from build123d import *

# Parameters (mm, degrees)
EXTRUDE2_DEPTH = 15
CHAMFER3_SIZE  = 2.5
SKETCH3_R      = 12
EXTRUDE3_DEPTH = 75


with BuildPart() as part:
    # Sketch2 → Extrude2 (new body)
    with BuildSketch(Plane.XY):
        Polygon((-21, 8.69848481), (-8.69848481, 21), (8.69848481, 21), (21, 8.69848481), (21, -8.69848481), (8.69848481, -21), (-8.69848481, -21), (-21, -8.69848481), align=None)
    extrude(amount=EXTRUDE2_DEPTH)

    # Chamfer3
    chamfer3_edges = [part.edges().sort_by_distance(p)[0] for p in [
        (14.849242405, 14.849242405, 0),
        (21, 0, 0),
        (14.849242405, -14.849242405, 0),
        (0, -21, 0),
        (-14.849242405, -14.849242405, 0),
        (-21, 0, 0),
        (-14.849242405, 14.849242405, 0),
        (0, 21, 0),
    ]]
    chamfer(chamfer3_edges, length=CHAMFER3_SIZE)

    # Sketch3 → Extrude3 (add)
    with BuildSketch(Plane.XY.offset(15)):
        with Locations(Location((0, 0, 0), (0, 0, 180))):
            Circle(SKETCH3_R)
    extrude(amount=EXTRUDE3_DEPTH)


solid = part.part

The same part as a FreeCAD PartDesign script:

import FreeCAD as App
import Part
import Sketcher


def edges_at(feature, points):
    """Names of the edges that pass closest to the given points."""
    edges = feature.Shape.Edges
    near = lambda p: min(range(len(edges)), key=lambda i: edges[i].distToShape(Part.Vertex(*p))[0])
    return sorted({f"Edge{near(p) + 1}" for p in points})

doc = App.newDocument("Part")
body = doc.addObject("PartDesign::Body", "Body")

# Sketch on XY plane
sketch1 = doc.addObject("Sketcher::SketchObject", "Sketch")
body.addObject(sketch1)
sketch1.AttachmentSupport = (doc.XY_Plane, [""])
sketch1.MapMode = "FlatFace"
sketch1.addGeometry([
    Part.LineSegment(App.Vector(-9, 21, 0), App.Vector(-21, 9, 0)),  # 0
    Part.LineSegment(App.Vector(-21, 9, 0), App.Vector(-21, -9, 0)),  # 1
    Part.LineSegment(App.Vector(-21, -9, 0), App.Vector(-9, -21, 0)),  # 2
    Part.LineSegment(App.Vector(-9, -21, 0), App.Vector(9, -21, 0)),  # 3
    Part.LineSegment(App.Vector(9, -21, 0), App.Vector(21, -9, 0)),  # 4
    Part.LineSegment(App.Vector(21, -9, 0), App.Vector(21, 9, 0)),  # 5
    Part.LineSegment(App.Vector(21, 9, 0), App.Vector(9, 21, 0)),  # 6
    Part.LineSegment(App.Vector(9, 21, 0), App.Vector(-9, 21, 0)),  # 7
], False)
sketch1.addConstraint([
    Sketcher.Constraint("Coincident", 0, 2, 1, 1),
    Sketcher.Constraint("Coincident", 1, 2, 2, 1),
    Sketcher.Constraint("Coincident", 2, 2, 3, 1),
    Sketcher.Constraint("Coincident", 3, 2, 4, 1),
    Sketcher.Constraint("Coincident", 4, 2, 5, 1),
    Sketcher.Constraint("Coincident", 5, 2, 6, 1),
    Sketcher.Constraint("Coincident", 6, 2, 7, 1),
    Sketcher.Constraint("Coincident", 7, 2, 0, 1),
    Sketcher.Constraint("Vertical", 1),
    Sketcher.Constraint("Horizontal", 3),
    Sketcher.Constraint("Vertical", 5),
    Sketcher.Constraint("Horizontal", 7),
    Sketcher.Constraint("Symmetric", 0, 2, 4, 2, -1, 1),
    Sketcher.Constraint("Symmetric", 2, 2, 6, 2, -1, 1),
    Sketcher.Constraint("Perpendicular", 0, 2),
    Sketcher.Constraint("Perpendicular", 2, 4),
    Sketcher.Constraint("Perpendicular", 4, 6),
    Sketcher.Constraint("Horizontal", 1, 2, 4, 2),
    Sketcher.Constraint("Vertical", 3, 2, 6, 2),
    Sketcher.Constraint("Equal", 7, 1),
    Sketcher.Constraint("DistanceX", 0, 2, -1, 1, 21.0),
    Sketcher.Constraint("DistanceX", 3, 1, 3, 2, 17.39697),
])
pad1 = doc.addObject("PartDesign::Pad", "Pad")
body.addObject(pad1)
pad1.Profile = sketch1
pad1.Length = 15
doc.recompute()

chamfer = doc.addObject("PartDesign::Chamfer", "Chamfer")
body.addObject(chamfer)
chamfer.Base = (pad1, edges_at(pad1, [
    (14.849, 14.849, 0),
    (21, 0, 0),
    (14.849, -14.849, 0),
    (0, -21, 0),
    (-14.849, -14.849, 0),
    (-21, 0, 0),
    (-14.849, 14.849, 0),
    (0, 21, 0),
]))
chamfer.Size = 2.5

# Sketch on XY plane
sketch2 = doc.addObject("Sketcher::SketchObject", "Sketch001")
body.addObject(sketch2)
sketch2.AttachmentSupport = (doc.XY_Plane, [""])
sketch2.MapMode = "FlatFace"
sketch2.AttachmentOffset = App.Placement(App.Vector(0, 0, 15), App.Rotation())
sketch2.addGeometry(Part.Circle(App.Vector(0, 0, 0), App.Vector(0, 0, 1), 12), False)
sketch2.addConstraint([
    Sketcher.Constraint("Coincident", 0, 3, -1, 1),
    Sketcher.Constraint("Diameter", 0, 24.0),
])
pad2 = doc.addObject("PartDesign::Pad", "Pad001")
body.addObject(pad2)
pad2.Profile = sketch2
pad2.Length = 75

doc.recompute()
